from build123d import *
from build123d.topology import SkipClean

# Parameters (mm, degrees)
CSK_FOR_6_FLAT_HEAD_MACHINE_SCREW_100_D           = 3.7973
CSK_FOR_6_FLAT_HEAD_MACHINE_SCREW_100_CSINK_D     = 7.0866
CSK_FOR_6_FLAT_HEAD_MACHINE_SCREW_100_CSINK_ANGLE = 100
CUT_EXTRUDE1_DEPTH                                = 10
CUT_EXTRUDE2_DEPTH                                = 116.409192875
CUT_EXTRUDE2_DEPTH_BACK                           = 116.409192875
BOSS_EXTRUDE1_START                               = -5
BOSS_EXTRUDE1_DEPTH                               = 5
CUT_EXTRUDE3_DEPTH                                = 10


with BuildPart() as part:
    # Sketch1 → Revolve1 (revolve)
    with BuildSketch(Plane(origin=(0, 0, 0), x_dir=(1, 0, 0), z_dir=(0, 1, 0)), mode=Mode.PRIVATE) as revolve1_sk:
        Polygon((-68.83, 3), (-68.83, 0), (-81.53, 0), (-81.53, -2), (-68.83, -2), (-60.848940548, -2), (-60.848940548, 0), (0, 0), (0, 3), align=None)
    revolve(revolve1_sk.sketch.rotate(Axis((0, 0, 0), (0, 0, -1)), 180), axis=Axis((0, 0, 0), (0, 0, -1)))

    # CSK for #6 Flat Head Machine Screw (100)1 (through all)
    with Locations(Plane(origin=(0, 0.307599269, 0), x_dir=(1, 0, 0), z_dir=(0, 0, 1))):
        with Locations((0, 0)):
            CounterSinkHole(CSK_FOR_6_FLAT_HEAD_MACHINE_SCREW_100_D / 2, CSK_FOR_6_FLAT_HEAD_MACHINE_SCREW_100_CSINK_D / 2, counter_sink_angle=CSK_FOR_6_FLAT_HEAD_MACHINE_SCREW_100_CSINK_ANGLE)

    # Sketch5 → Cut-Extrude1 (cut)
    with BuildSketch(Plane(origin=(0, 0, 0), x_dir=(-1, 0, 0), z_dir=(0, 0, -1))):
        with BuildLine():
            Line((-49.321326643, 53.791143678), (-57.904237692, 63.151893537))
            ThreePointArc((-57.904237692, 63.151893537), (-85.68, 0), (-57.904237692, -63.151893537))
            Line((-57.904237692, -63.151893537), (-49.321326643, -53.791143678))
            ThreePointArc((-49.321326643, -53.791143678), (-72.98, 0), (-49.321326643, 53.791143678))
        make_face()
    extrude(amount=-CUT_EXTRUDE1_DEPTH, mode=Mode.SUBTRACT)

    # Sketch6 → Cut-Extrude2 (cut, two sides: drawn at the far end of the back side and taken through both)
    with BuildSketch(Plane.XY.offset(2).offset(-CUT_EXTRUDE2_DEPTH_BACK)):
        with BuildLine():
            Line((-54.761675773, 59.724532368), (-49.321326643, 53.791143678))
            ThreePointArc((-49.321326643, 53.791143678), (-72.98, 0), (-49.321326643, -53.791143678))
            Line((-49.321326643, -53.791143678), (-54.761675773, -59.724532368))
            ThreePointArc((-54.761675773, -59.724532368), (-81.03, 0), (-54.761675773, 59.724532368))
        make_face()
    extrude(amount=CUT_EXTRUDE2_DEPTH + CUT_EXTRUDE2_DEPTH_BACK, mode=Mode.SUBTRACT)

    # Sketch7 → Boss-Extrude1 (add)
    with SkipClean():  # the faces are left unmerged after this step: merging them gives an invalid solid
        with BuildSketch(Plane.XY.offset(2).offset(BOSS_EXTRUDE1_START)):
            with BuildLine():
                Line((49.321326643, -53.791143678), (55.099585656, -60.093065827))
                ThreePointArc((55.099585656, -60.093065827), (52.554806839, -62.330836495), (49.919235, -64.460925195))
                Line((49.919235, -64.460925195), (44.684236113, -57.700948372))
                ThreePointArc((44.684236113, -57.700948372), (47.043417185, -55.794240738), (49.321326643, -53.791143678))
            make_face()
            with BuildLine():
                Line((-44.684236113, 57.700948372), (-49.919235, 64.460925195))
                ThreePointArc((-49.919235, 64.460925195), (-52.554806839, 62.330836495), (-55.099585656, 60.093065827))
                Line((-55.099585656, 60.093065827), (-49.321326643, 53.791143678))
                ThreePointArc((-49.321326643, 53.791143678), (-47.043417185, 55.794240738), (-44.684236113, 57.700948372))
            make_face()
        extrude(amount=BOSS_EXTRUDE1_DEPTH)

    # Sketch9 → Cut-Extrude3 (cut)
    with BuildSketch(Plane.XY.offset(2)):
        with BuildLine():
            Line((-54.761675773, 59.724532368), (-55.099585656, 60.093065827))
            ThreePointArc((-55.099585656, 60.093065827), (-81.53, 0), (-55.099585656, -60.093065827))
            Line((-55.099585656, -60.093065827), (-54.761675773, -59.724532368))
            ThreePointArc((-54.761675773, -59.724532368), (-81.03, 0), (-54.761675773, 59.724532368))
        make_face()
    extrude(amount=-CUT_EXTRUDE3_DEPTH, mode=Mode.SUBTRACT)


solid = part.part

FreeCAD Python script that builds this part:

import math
import FreeCAD as App
import Part
import Sketcher


def add_polygon(sketch, points):
    """Adds a closed chain of lines whose ends are joined by coincident constraints."""
    first, n = sketch.GeometryCount, len(points)
    for a, b in zip(points, points[1:] + points[:1]):
        sketch.addGeometry(Part.LineSegment(App.Vector(*a, 0), App.Vector(*b, 0)), False)
    for i in range(n):
        sketch.addConstraint(Sketcher.Constraint("Coincident", first + i, 2, first + (i + 1) % n, 1))

doc = App.newDocument("Part")
body = doc.addObject("PartDesign::Body", "Body")

sketch1 = body.newObject("Sketcher::SketchObject", "Sketch")
sketch1.AttachmentSupport = (doc.getObject("XZ_Plane"), [""])
sketch1.MapMode = "FlatFace"
add_polygon(sketch1, [(-68.8, -3), (-68.8, 0), (-81.5, 0), (-81.5, 2), (-60.8, 2), (-60.8, 0), (0, 0), (0, -3)])
sketch1.addConstraint([
    Sketcher.Constraint("Vertical", 0),
    Sketcher.Constraint("Horizontal", 1),
    Sketcher.Constraint("Vertical", 2),
    Sketcher.Constraint("Horizontal", 3),
    Sketcher.Constraint("Vertical", 4),
    Sketcher.Constraint("Horizontal", 5),
    Sketcher.Constraint("Vertical", 6),
    Sketcher.Constraint("Horizontal", 7),
    Sketcher.Constraint("Coincident", 5, 2, -1, 1),
    Sketcher.Constraint("PointOnObject", 0, 2, -1),
    Sketcher.Constraint("DistanceY", 0, 1, 0, 2, 3.0),
    Sketcher.Constraint("DistanceY", 2, 1, 2, 2, 2.0),
    Sketcher.Constraint("DistanceX", 1, 2, 1, 1, 12.7),
    Sketcher.Constraint("DistanceX", 7, 2, 7, 1, 68.83),
    Sketcher.Constraint("DistanceX", 3, 1, 3, 2, 20.681059),
])
revolution = body.newObject("PartDesign::Revolution", "Revolution")
revolution.Profile = sketch1
revolution.ReferenceAxis = (sketch1, ["V_Axis"])
revolution.Angle = 360

sketch2 = body.newObject("Sketcher::SketchObject", "Sketch001")
sketch2.AttachmentSupport = (doc.getObject("XY_Plane"), [""])
sketch2.MapMode = "FlatFace"
sketch2.addGeometry(Part.Circle(App.Vector(0, 0.3, 0), App.Vector(0, 0, 1), 1.9), False)
sketch2.addConstraint([
    Sketcher.Constraint("PointOnObject", 0, 3, -2),
    Sketcher.Constraint("Diameter", 0, 3.7973),
    Sketcher.Constraint("DistanceY", -1, 1, 0, 3, 0.307599),
])
doc.recompute()
hole = body.newObject("PartDesign::Hole", "Hole")
hole.Profile = sketch2
hole.ThreadType = "None"
hole.Diameter = 3.7973
hole.DepthType = "ThroughAll"
hole.HoleCutType = "Countersink"
hole.HoleCutDiameter = 7.0866
hole.HoleCutCountersinkAngle = 100

sketch3 = body.newObject("Sketcher::SketchObject", "Sketch002")
sketch3.AttachmentSupport = (doc.getObject("XY_Plane"), [""])
sketch3.MapMode = "FlatFace"
sketch3.addGeometry([
    Part.LineSegment(App.Vector(49, 54, 0), App.Vector(58, 63, 0)),
    Part.ArcOfCircle(Part.Circle(App.Vector(0, 0, 0), App.Vector(0, 0, 1), 86), math.radians(-47), math.radians(47)),
    Part.LineSegment(App.Vector(58, -63, 0), App.Vector(49, -54, 0)),
    Part.ArcOfCircle(Part.Circle(App.Vector(0, 0, 0), App.Vector(0, 0, 1), 73), math.radians(-47), math.radians(47)),
], False)
sketch3.addConstraint([
    Sketcher.Constraint("Coincident", 0, 2, 1, 2),
    Sketcher.Constraint("Coincident", 1, 1, 2, 1),
    Sketcher.Constraint("Coincident", 2, 2, 3, 1),
    Sketcher.Constraint("Coincident", 3, 2, 0, 1),
    Sketcher.Constraint("Coincident", 1, 3, -1, 1),
    Sketcher.Constraint("Coincident", 3, 3, -1, 1),
    Sketcher.Constraint("Vertical", 0, 2, 1, 1),
    Sketcher.Constraint("Vertical", 2, 2, 3, 2),
    Sketcher.Constraint("Radius", 1, 85.68),
    Sketcher.Constraint("Radius", 3, 72.98),
    Sketcher.Constraint("DistanceX", 2, 2, 1, 1, 8.582911),
    Sketcher.Constraint("DistanceX", -1, 1, 0, 2, 57.904238),
])
pocket1 = body.newObject("PartDesign::Pocket", "Pocket")
pocket1.Profile = sketch3
pocket1.Length = 10
pocket1.Reversed = True

sketch4 = body.newObject("Sketcher::SketchObject", "Sketch003")
sketch4.AttachmentSupport = (doc.getObject("XY_Plane"), [""])
sketch4.MapMode = "FlatFace"
sketch4.AttachmentOffset = App.Placement(App.Vector(0, 0, 2), App.Rotation())
sketch4.addGeometry([
    Part.LineSegment(App.Vector(-49, 54, 0), App.Vector(-55, 60, 0)),
    Part.ArcOfCircle(Part.Circle(App.Vector(0, 0, 0), App.Vector(0, 0, 1), 81), math.radians(133), math.radians(227)),
    Part.LineSegment(App.Vector(-55, -60, 0), App.Vector(-49, -54, 0)),
    Part.ArcOfCircle(Part.Circle(App.Vector(0, 0, 0), App.Vector(0, 0, 1), 73), math.radians(133), math.radians(227)),
], False)
sketch4.addConstraint([
    Sketcher.Constraint("Coincident", 0, 2, 1, 1),
    Sketcher.Constraint("Coincident", 1, 2, 2, 1),
    Sketcher.Constraint("Coincident", 2, 2, 3, 2),
    Sketcher.Constraint("Coincident", 3, 1, 0, 1),
    Sketcher.Constraint("Coincident", 1, 3, -1, 1),
    Sketcher.Constraint("Coincident", 3, 3, -1, 1),
    Sketcher.Constraint("Vertical", 0, 2, 1, 2),
    Sketcher.Constraint("Vertical", 2, 2, 3, 1),
    Sketcher.Constraint("Radius", 1, 81.03),
    Sketcher.Constraint("Radius", 3, 72.98),
    Sketcher.Constraint("DistanceX", 1, 2, 2, 2, 5.440349),
    Sketcher.Constraint("DistanceX", 0, 2, -1, 1, 54.761676),
])
pocket2 = body.newObject("PartDesign::Pocket", "Pocket001")
pocket2.Profile = sketch4
pocket2.Type = "ThroughAll"
pocket2.Midplane = True

sketch5 = body.newObject("Sketcher::SketchObject", "Sketch004")
sketch5.AttachmentSupport = (doc.getObject("XY_Plane"), [""])
sketch5.MapMode = "FlatFace"
sketch5.AttachmentOffset = App.Placement(App.Vector(0, 0, -3), App.Rotation())
sketch5.addGeometry([
    Part.LineSegment(App.Vector(55, -60, 0), App.Vector(49, -54, 0)),
    Part.ArcOfCircle(Part.Circle(App.Vector(0, 0, 0), App.Vector(0, 0, 1), 73), math.radians(-52.25), math.radians(-47.48)),
    Part.LineSegment(App.Vector(45, -58, 0), App.Vector(50, -64, 0)),
    Part.ArcOfCircle(Part.Circle(App.Vector(0, 0, 0), App.Vector(0, 0, 1), 82), math.radians(-52.25), math.radians(-47.48)),
    Part.LineSegment(App.Vector(-45, 58, 0), App.Vector(-50, 64, 0)),
    Part.ArcOfCircle(Part.Circle(App.Vector(0, 0, 0), App.Vector(0, 0, 1), 82), math.radians(127.75), math.radians(132.52)),
    Part.LineSegment(App.Vector(-55, 60, 0), App.Vector(-49, 54, 0)),
    Part.ArcOfCircle(Part.Circle(App.Vector(0, 0, 0), App.Vector(0, 0, 1), 73), math.radians(127.75), math.radians(132.52)),
], False)
sketch5.addConstraint([
    Sketcher.Constraint("Coincident", 0, 2, 1, 2),
    Sketcher.Constraint("Coincident", 1, 1, 2, 1),
    Sketcher.Constraint("Coincident", 2, 2, 3, 1),
    Sketcher.Constraint("Coincident", 3, 2, 0, 1),
    Sketcher.Constraint("Coincident", 4, 2, 5, 1),
    Sketcher.Constraint("Coincident", 5, 2, 6, 1),
    Sketcher.Constraint("Coincident", 6, 2, 7, 2),
    Sketcher.Constraint("Coincident", 7, 1, 4, 1),
    Sketcher.Constraint("Coincident", 1, 3, -1, 1),
    Sketcher.Constraint("Coincident", 3, 3, -1, 1),
    Sketcher.Constraint("Coincident", 5, 3, -1, 1),
    Sketcher.Constraint("Coincident", 7, 3, -1, 1),
    Sketcher.Constraint("Equal", 3, 5),
    Sketcher.Constraint("Equal", 1, 7),
    Sketcher.Constraint("Parallel", 2, 4),
    Sketcher.Constraint("Parallel", 0, 6),
    Sketcher.Constraint("Radius", 1, 72.98),
    Sketcher.Constraint("Radius", 3, 81.529999),
    Sketcher.Constraint("DistanceX", 1, 1, 2, 2, 5.234999),
    Sketcher.Constraint("DistanceY", 1, 1, -1, 1, 57.700948),
    Sketcher.Constraint("DistanceY", -1, 1, 7, 1, 57.700948),
    Sketcher.Constraint("DistanceX", 1, 1, 0, 2, 4.637091),
    Sketcher.Constraint("DistanceX", 2, 2, 3, 2, 5.180351),
    Sketcher.Constraint("DistanceX", 5, 2, 4, 2, 5.180351),
])
pad1 = body.newObject("PartDesign::Pad", "Pad")
pad1.Profile = sketch5
pad1.Length = 5

sketch6 = body.newObject("Sketcher::SketchObject", "Sketch005")
sketch6.AttachmentSupport = (doc.getObject("XY_Plane"), [""])
sketch6.MapMode = "FlatFace"
sketch6.AttachmentOffset = App.Placement(App.Vector(0, 0, 2), App.Rotation())
sketch6.addGeometry([
    Part.LineSegment(App.Vector(-54.76, 59.72, 0), App.Vector(-55.1, 60.09, 0)),
    Part.ArcOfCircle(Part.Circle(App.Vector(0, 0, 0), App.Vector(0, 0, 1), 81.53), math.radians(133), math.radians(227)),
    Part.LineSegment(App.Vector(-55.1, -60.09, 0), App.Vector(-54.76, -59.72, 0)),
    Part.ArcOfCircle(Part.Circle(App.Vector(0, 0, 0), App.Vector(0, 0, 1), 81.03), math.radians(133), math.radians(227)),
], False)
sketch6.addConstraint([
    Sketcher.Constraint("Coincident", 0, 2, 1, 1),
    Sketcher.Constraint("Coincident", 1, 2, 2, 1),
    Sketcher.Constraint("Coincident", 2, 2, 3, 2),
    Sketcher.Constraint("Coincident", 3, 1, 0, 1),
    Sketcher.Constraint("Coincident", 1, 3, -1, 1),
    Sketcher.Constraint("Coincident", 3, 3, -1, 1),
    Sketcher.Constraint("Vertical", 0, 2, 1, 2),
    Sketcher.Constraint("Vertical", 2, 2, 3, 1),
    Sketcher.Constraint("Radius", 1, 81.53),
    Sketcher.Constraint("Radius", 3, 81.03),
    Sketcher.Constraint("DistanceY", 2, 2, 0, 2, 119.817598),
    Sketcher.Constraint("DistanceY", 1, 2, 0, 2, 120.186132),
])
pocket3 = body.newObject("PartDesign::Pocket", "Pocket002")
pocket3.Profile = sketch6
pocket3.Length = 10

doc.recompute()
